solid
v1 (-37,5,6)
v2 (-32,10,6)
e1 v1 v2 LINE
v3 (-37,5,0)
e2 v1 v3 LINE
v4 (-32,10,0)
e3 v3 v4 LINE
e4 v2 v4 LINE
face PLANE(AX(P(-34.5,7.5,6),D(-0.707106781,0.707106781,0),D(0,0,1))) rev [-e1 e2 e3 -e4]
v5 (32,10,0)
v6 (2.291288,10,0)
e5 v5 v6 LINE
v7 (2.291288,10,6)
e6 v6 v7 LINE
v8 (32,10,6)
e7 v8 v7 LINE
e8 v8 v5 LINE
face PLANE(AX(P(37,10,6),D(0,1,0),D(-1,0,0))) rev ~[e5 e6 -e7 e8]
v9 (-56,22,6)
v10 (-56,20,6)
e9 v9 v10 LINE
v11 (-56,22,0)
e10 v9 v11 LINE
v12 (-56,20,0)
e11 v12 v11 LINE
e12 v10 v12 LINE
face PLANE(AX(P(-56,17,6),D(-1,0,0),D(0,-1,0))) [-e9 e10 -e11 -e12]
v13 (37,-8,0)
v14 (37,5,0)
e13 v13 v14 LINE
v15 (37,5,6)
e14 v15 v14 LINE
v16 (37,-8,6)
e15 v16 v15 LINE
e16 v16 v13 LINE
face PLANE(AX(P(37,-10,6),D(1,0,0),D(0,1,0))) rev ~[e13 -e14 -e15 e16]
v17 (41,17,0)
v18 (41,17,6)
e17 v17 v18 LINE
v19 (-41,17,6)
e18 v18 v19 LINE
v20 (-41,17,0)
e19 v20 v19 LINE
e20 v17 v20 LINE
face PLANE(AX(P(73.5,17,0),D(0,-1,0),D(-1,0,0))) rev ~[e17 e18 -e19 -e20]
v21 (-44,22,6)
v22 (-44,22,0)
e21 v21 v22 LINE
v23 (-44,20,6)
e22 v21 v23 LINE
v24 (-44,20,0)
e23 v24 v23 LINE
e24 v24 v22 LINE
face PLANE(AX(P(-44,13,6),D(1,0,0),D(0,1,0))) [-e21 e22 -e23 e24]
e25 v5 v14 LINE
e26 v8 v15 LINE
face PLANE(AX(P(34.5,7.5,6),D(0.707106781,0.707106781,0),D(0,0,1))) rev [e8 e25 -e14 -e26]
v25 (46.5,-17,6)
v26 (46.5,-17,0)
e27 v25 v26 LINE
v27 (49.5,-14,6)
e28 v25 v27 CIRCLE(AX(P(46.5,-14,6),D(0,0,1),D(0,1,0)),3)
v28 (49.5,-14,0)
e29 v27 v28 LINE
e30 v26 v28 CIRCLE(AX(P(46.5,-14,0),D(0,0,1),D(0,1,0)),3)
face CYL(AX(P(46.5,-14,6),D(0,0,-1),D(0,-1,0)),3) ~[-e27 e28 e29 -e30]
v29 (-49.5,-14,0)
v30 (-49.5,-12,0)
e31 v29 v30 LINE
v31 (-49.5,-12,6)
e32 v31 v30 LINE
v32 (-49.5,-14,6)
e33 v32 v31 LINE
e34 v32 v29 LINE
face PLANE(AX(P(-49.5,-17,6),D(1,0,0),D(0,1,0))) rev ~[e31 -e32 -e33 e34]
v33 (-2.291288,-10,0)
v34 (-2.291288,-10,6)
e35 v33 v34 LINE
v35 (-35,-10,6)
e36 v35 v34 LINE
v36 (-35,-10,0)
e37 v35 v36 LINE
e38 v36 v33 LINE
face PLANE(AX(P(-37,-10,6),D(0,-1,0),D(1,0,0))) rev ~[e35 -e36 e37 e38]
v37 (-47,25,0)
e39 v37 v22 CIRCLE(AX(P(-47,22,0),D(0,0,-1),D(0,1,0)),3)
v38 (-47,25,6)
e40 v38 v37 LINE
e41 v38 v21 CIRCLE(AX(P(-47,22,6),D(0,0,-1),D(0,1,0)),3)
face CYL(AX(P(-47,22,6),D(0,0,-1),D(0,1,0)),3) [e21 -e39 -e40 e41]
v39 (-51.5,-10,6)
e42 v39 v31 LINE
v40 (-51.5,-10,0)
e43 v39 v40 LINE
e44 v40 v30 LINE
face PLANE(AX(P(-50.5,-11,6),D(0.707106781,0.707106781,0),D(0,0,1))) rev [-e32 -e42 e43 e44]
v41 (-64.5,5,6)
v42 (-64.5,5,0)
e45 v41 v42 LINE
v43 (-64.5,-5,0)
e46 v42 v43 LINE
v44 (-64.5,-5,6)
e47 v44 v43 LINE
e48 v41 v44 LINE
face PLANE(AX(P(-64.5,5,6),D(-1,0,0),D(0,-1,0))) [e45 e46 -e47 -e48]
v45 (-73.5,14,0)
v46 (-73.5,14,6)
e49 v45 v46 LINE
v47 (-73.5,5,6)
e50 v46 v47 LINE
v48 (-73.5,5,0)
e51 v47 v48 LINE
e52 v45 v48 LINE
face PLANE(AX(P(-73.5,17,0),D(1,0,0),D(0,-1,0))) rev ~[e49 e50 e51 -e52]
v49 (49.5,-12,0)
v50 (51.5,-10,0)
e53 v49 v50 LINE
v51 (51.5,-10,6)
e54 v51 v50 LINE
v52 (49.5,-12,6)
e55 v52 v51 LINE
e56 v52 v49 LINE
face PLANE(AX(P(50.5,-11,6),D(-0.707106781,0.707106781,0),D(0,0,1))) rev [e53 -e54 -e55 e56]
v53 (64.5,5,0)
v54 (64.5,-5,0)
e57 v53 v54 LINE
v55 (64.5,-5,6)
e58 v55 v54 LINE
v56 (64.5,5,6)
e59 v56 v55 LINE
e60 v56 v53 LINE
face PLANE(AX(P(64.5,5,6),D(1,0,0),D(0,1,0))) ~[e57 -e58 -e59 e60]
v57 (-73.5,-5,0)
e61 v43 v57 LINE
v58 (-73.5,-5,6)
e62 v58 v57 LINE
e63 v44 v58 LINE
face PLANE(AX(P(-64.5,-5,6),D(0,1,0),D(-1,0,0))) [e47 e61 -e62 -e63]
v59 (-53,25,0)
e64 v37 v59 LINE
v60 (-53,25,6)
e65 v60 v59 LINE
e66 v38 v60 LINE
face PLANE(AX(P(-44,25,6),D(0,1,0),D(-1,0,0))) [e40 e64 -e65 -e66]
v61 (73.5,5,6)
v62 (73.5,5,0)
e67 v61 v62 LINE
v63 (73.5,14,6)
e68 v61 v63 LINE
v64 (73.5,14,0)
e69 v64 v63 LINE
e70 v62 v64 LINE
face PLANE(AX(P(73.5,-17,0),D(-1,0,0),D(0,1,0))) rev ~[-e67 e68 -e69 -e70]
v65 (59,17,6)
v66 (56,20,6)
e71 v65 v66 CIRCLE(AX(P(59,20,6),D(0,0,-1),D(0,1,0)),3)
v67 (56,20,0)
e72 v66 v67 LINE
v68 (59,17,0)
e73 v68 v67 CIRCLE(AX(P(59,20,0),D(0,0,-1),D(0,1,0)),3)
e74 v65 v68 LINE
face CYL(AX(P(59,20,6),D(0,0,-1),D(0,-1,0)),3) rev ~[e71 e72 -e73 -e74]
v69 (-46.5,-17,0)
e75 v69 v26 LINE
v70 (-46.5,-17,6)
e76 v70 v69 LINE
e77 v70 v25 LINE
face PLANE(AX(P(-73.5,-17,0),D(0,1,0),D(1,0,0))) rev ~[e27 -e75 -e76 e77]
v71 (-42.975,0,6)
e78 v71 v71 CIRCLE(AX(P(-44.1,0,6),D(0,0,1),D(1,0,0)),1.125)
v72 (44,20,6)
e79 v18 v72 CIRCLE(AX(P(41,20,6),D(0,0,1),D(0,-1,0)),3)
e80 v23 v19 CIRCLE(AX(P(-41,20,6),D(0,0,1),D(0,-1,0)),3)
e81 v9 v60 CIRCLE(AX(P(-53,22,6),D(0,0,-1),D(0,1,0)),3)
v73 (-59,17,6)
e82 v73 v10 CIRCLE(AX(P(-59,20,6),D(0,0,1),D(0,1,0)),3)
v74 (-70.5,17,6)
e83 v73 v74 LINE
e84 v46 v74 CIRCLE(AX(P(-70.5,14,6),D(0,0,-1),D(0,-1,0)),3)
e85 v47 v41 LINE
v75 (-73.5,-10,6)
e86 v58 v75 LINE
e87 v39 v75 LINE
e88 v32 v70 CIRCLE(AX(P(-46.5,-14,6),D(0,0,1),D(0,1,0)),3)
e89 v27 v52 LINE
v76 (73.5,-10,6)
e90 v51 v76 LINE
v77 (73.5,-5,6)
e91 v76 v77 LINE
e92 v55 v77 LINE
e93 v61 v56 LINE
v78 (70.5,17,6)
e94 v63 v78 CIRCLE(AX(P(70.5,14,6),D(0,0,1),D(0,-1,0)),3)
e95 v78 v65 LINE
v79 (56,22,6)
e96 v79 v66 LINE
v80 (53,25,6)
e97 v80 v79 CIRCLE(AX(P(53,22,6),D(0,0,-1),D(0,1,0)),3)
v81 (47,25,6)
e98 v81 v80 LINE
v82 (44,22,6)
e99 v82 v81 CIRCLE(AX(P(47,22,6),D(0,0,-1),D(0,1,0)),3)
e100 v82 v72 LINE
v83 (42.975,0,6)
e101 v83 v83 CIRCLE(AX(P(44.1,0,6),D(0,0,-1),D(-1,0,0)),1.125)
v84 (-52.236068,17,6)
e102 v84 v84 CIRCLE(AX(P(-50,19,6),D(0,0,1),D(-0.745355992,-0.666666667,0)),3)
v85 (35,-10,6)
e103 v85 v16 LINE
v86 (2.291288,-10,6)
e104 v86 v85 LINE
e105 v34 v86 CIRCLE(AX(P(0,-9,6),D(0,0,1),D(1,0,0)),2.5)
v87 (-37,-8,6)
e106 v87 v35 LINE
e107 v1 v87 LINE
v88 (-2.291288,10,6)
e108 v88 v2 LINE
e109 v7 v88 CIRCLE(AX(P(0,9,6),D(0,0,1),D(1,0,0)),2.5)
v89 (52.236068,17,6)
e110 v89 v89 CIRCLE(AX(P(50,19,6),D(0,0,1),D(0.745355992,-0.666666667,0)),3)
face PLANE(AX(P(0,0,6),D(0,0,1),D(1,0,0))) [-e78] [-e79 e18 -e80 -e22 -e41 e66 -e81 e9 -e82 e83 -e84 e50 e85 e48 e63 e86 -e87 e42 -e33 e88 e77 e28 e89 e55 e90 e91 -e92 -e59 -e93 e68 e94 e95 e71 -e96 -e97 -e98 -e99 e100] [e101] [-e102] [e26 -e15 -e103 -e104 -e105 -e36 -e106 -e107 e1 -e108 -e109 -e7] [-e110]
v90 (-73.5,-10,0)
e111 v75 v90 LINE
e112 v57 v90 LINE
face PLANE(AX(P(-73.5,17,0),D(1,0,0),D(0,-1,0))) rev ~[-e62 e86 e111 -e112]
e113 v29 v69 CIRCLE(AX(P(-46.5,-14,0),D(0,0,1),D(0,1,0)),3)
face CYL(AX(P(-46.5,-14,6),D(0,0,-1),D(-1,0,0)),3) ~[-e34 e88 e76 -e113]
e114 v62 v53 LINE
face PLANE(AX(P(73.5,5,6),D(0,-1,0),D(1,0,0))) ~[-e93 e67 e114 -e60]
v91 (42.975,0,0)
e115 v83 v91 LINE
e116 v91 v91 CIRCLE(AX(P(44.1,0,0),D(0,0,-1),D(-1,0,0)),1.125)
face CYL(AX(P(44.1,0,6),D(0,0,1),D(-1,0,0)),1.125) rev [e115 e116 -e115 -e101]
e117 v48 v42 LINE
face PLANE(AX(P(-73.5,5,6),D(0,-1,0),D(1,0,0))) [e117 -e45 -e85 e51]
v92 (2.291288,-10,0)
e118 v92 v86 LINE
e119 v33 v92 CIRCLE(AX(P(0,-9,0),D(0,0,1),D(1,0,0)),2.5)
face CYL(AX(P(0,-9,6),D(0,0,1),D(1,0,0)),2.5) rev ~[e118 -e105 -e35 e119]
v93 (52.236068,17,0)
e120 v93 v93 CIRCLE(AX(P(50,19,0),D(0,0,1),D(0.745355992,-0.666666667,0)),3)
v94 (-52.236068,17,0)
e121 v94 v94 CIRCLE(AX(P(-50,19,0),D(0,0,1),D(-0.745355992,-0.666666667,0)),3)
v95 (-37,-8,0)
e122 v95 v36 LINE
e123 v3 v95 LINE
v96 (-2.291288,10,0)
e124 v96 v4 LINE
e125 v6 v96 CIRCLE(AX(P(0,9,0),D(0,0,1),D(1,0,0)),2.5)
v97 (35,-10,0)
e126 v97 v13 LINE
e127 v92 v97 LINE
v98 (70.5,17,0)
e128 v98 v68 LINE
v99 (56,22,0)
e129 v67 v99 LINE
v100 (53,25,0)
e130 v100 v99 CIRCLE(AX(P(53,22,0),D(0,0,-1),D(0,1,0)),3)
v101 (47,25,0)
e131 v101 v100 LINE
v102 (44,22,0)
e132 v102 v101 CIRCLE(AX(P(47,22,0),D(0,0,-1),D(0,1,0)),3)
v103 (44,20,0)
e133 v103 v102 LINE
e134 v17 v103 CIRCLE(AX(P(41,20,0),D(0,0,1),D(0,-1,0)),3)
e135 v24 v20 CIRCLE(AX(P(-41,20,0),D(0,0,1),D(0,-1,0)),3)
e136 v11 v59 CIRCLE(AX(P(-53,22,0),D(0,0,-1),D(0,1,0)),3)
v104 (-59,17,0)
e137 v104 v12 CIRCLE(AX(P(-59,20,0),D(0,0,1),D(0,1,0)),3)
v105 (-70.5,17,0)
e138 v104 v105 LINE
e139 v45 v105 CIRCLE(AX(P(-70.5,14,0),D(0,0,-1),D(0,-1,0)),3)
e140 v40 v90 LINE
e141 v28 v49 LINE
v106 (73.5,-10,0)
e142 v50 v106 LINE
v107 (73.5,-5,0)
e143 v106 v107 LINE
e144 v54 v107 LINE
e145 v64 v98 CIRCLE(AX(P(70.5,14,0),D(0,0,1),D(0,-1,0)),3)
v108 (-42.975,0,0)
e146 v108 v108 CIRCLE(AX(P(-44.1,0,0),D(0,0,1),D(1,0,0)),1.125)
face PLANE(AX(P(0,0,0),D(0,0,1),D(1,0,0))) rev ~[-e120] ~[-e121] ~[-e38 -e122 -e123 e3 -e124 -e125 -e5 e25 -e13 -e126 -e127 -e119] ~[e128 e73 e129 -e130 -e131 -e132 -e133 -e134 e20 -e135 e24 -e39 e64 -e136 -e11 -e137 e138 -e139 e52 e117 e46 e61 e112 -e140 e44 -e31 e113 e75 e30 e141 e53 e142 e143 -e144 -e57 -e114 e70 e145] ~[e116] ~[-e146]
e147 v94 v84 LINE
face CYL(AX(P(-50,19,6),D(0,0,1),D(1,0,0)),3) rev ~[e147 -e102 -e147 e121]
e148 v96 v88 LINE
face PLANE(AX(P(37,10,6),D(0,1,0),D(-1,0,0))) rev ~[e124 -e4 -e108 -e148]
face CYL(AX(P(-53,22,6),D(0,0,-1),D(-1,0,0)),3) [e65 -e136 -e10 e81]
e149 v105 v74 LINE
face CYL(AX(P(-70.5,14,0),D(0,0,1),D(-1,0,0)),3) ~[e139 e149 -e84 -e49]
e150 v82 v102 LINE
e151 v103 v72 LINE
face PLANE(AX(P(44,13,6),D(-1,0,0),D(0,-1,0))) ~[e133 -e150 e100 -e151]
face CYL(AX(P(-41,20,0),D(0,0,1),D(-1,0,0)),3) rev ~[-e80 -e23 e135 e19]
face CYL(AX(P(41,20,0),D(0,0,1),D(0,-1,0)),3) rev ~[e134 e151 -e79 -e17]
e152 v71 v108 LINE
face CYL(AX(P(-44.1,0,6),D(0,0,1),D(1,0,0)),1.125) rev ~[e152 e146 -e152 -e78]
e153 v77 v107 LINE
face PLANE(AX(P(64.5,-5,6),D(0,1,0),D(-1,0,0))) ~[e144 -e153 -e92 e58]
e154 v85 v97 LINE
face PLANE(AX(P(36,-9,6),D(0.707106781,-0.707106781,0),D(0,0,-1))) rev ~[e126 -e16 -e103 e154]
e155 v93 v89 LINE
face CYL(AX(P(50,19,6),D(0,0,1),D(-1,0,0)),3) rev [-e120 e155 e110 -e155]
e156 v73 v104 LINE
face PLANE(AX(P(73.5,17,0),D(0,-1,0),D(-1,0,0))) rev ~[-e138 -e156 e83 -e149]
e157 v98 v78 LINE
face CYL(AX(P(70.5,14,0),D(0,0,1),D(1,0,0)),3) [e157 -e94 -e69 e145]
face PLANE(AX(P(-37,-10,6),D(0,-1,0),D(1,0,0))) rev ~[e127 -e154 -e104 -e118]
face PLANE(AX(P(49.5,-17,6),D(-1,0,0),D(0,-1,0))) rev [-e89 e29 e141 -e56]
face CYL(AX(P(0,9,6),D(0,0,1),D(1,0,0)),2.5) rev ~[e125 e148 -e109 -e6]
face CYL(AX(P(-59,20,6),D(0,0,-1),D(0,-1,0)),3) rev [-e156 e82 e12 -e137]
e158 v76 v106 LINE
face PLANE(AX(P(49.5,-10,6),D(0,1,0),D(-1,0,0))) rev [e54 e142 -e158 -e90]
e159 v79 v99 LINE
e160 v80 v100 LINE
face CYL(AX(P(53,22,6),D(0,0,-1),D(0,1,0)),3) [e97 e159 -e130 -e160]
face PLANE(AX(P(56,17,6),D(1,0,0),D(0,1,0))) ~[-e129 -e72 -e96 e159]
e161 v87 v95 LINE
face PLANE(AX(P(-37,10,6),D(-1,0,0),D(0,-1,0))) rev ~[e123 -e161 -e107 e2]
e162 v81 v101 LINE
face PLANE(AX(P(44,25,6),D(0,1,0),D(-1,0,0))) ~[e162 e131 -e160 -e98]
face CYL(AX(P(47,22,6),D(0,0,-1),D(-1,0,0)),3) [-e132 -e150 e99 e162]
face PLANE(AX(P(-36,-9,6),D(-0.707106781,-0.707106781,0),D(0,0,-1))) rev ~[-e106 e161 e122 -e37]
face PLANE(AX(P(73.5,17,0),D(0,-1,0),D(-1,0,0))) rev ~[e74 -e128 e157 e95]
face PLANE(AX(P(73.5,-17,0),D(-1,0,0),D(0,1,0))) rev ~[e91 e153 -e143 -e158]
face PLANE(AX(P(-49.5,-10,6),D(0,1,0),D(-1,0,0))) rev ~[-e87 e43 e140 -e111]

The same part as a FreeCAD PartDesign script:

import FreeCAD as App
import Part
import Sketcher

V = App.Vector


def edges_at(feature, points):
    """Names of the edges that pass closest to the given points."""
    edges = feature.Shape.Edges
    near = lambda p: min(range(len(edges)), key=lambda i: edges[i].distToShape(Part.Vertex(*p))[0])
    return sorted({f"Edge{near(p) + 1}" for p in points})

doc = App.newDocument("Part")
body = doc.addObject("PartDesign::Body", "Body")

# Sketch on XY plane
sketch1 = body.newObject("Sketcher::SketchObject", "Sketch")
sketch1.AttachmentSupport = (doc.getObject("XY_Plane"), [""])
sketch1.MapMode = "FlatFace"
sketch1.addGeometry(Part.LineSegment(V(-74, 17, 0), V(-74, -17, 0)), False)
sketch1.addGeometry(Part.LineSegment(V(-74, -17, 0), V(74, -17, 0)), False)
sketch1.addGeometry(Part.LineSegment(V(74, -17, 0), V(74, 17, 0)), False)
sketch1.addGeometry(Part.LineSegment(V(74, 17, 0), V(-74, 17, 0)), False)
sketch1.addConstraint(Sketcher.Constraint("Coincident", 0, 2, 1, 1))
sketch1.addConstraint(Sketcher.Constraint("Coincident", 1, 2, 2, 1))
sketch1.addConstraint(Sketcher.Constraint("Coincident", 2, 2, 3, 1))
sketch1.addConstraint(Sketcher.Constraint("Coincident", 3, 2, 0, 1))
sketch1.addConstraint(Sketcher.Constraint("Vertical", 0))
sketch1.addConstraint(Sketcher.Constraint("Horizontal", 1))
sketch1.addConstraint(Sketcher.Constraint("Vertical", 2))
sketch1.addConstraint(Sketcher.Constraint("Horizontal", 3))
sketch1.addConstraint(Sketcher.Constraint("Symmetric", 0, 2, 2, 2, -1, 1))
sketch1.addConstraint(Sketcher.Constraint("DistanceX", 1, 1, 1, 2, 147.0))
sketch1.addConstraint(Sketcher.Constraint("DistanceY", 0, 2, 0, 1, 34.0))
pad1 = body.newObject("PartDesign::Pad", "Pad")
pad1.Profile = sketch1
pad1.Length = 6

# Sketch on XY plane
sketch2 = body.newObject("Sketcher::SketchObject", "Sketch001")
sketch2.AttachmentSupport = (doc.getObject("XY_Plane"), [""])
sketch2.MapMode = "FlatFace"
sketch2.AttachmentOffset = App.Placement(V(0, 0, 6), App.Rotation())
sketch2.addGeometry(Part.LineSegment(V(-37, 10, 0), V(-37, -10, 0)), False)
sketch2.addGeometry(Part.LineSegment(V(-37, -10, 0), V(37, -10, 0)), False)
sketch2.addGeometry(Part.LineSegment(V(37, -10, 0), V(37, 10, 0)), False)
sketch2.addGeometry(Part.LineSegment(V(37, 10, 0), V(-37, 10, 0)), False)
sketch2.addConstraint(Sketcher.Constraint("Coincident", 0, 2, 1, 1))
sketch2.addConstraint(Sketcher.Constraint("Coincident", 1, 2, 2, 1))
sketch2.addConstraint(Sketcher.Constraint("Coincident", 2, 2, 3, 1))
sketch2.addConstraint(Sketcher.Constraint("Coincident", 3, 2, 0, 1))
sketch2.addConstraint(Sketcher.Constraint("Vertical", 0))
sketch2.addConstraint(Sketcher.Constraint("Horizontal", 1))
sketch2.addConstraint(Sketcher.Constraint("Vertical", 2))
sketch2.addConstraint(Sketcher.Constraint("Horizontal", 3))
sketch2.addConstraint(Sketcher.Constraint("Symmetric", 0, 2, 2, 2, -1, 1))
sketch2.addConstraint(Sketcher.Constraint("DistanceX", 1, 1, 1, 2, 74.0))
sketch2.addConstraint(Sketcher.Constraint("DistanceY", 0, 2, 0, 1, 20.0))
pocket1 = body.newObject("PartDesign::Pocket", "Pocket")
pocket1.Profile = sketch2
pocket1.Length = 6

# Sketch on XY plane
sketch3 = body.newObject("Sketcher::SketchObject", "Sketch002")
sketch3.AttachmentSupport = (doc.getObject("XY_Plane"), [""])
sketch3.MapMode = "FlatFace"
sketch3.AttachmentOffset = App.Placement(V(0, 0, 6), App.Rotation())
sketch3.addGeometry(Part.Circle(V(0, 9, 0), V(0, 0, 1), 2.5), False)
sketch3.addGeometry(Part.Circle(V(0, -9, 0), V(0, 0, 1), 2.5), False)
sketch3.addConstraint(Sketcher.Constraint("Equal", 0, 1))
sketch3.addConstraint(Sketcher.Constraint("Symmetric", 0, 3, 1, 3, -1, 1))
sketch3.addConstraint(Sketcher.Constraint("PointOnObject", 0, 3, -2))
sketch3.addConstraint(Sketcher.Constraint("Diameter", 0, 5.0))
sketch3.addConstraint(Sketcher.Constraint("DistanceY", -1, 1, 0, 3, 9.0))
pocket2 = body.newObject("PartDesign::Pocket", "Pocket001")
pocket2.Profile = sketch3
pocket2.Length = 6

# Sketch on XY plane
sketch4 = body.newObject("Sketcher::SketchObject", "Sketch003")
sketch4.AttachmentSupport = (doc.getObject("XY_Plane"), [""])
sketch4.MapMode = "FlatFace"
sketch4.AttachmentOffset = App.Placement(V(0, 0, 6), App.Rotation())
sketch4.addGeometry(Part.LineSegment(V(-44, 13, 0), V(-44, 25, 0)), False)
sketch4.addGeometry(Part.LineSegment(V(-44, 25, 0), V(-56, 25, 0)), False)
sketch4.addGeometry(Part.LineSegment(V(-56, 25, 0), V(-56, 13, 0)), False)
sketch4.addGeometry(Part.LineSegment(V(-56, 13, 0), V(-44, 13, 0)), False)
sketch4.addGeometry(Part.Circle(V(-50, 19, 0), V(0, 0, 1), 3), False)
sketch4.addConstraint(Sketcher.Constraint("Coincident", 0, 2, 1, 1))
sketch4.addConstraint(Sketcher.Constraint("Coincident", 1, 2, 2, 1))
sketch4.addConstraint(Sketcher.Constraint("Coincident", 2, 2, 3, 1))
sketch4.addConstraint(Sketcher.Constraint("Coincident", 3, 2, 0, 1))
sketch4.addConstraint(Sketcher.Constraint("Vertical", 0))
sketch4.addConstraint(Sketcher.Constraint("Horizontal", 1))
sketch4.addConstraint(Sketcher.Constraint("Vertical", 2))
sketch4.addConstraint(Sketcher.Constraint("Horizontal", 3))
sketch4.addConstraint(Sketcher.Constraint("Equal", 3, 0))
sketch4.addConstraint(Sketcher.Constraint("Diameter", 4, 6.0))
sketch4.addConstraint(Sketcher.Constraint("DistanceX", 1, 2, 1, 1, 12.0))
sketch4.addConstraint(Sketcher.Constraint("DistanceX", 4, 3, -1, 1, 50.0))
sketch4.addConstraint(Sketcher.Constraint("DistanceX", 4, 3, 0, 2, 6.0))
sketch4.addConstraint(Sketcher.Constraint("DistanceY", 4, 3, 0, 2, 6.0))
sketch4.addConstraint(Sketcher.Constraint("DistanceY", -1, 1, 4, 3, 19.0))
pad2 = body.newObject("PartDesign::Pad", "Pad001")
pad2.Profile = sketch4
pad2.Length = 6
pad2.Reversed = True

# Sketch on XY plane
sketch5 = body.newObject("Sketcher::SketchObject", "Sketch004")
sketch5.AttachmentSupport = (doc.getObject("XY_Plane"), [""])
sketch5.MapMode = "FlatFace"
sketch5.AttachmentOffset = App.Placement(V(0, 0, 6), App.Rotation())
sketch5.addGeometry(Part.LineSegment(V(-64, 5, 0), V(-74, 5, 0)), False)
sketch5.addGeometry(Part.LineSegment(V(-74, 5, 0), V(-74, -5, 0)), False)
sketch5.addGeometry(Part.LineSegment(V(-74, -5, 0), V(-64, -5, 0)), False)
sketch5.addGeometry(Part.LineSegment(V(-64, -5, 0), V(-64, 5, 0)), False)
sketch5.addConstraint(Sketcher.Constraint("Coincident", 0, 2, 1, 1))
sketch5.addConstraint(Sketcher.Constraint("Coincident", 1, 2, 2, 1))
sketch5.addConstraint(Sketcher.Constraint("Coincident", 2, 2, 3, 1))
sketch5.addConstraint(Sketcher.Constraint("Coincident", 3, 2, 0, 1))
sketch5.addConstraint(Sketcher.Constraint("Horizontal", 0))
sketch5.addConstraint(Sketcher.Constraint("Vertical", 1))
sketch5.addConstraint(Sketcher.Constraint("Horizontal", 2))
sketch5.addConstraint(Sketcher.Constraint("Vertical", 3))
sketch5.addConstraint(Sketcher.Constraint("DistanceX", 0, 2, 0, 1, 9.0))
sketch5.addConstraint(Sketcher.Constraint("DistanceY", 1, 2, 1, 1, 10.0))
sketch5.addConstraint(Sketcher.Constraint("DistanceY", -1, 1, 0, 2, 5.0))
sketch5.addConstraint(Sketcher.Constraint("DistanceX", 0, 2, -1, 1, 73.5))
pocket3 = body.newObject("PartDesign::Pocket", "Pocket002")
pocket3.Profile = sketch5
pocket3.Length = 6

# Sketch on XY plane
sketch6 = body.newObject("Sketcher::SketchObject", "Sketch005")
sketch6.AttachmentSupport = (doc.getObject("XY_Plane"), [""])
sketch6.MapMode = "FlatFace"
sketch6.AttachmentOffset = App.Placement(V(0, 0, 6), App.Rotation())
sketch6.addGeometry(Part.LineSegment(V(-74, -10, 0), V(-74, -17, 0)), False)
sketch6.addGeometry(Part.LineSegment(V(-74, -17, 0), V(-50, -17, 0)), False)
sketch6.addGeometry(Part.LineSegment(V(-50, -17, 0), V(-50, -10, 0)), False)
sketch6.addGeometry(Part.LineSegment(V(-50, -10, 0), V(-74, -10, 0)), False)
sketch6.addConstraint(Sketcher.Constraint("Coincident", 0, 2, 1, 1))
sketch6.addConstraint(Sketcher.Constraint("Coincident", 1, 2, 2, 1))
sketch6.addConstraint(Sketcher.Constraint("Coincident", 2, 2, 3, 1))
sketch6.addConstraint(Sketcher.Constraint("Coincident", 3, 2, 0, 1))
sketch6.addConstraint(Sketcher.Constraint("Vertical", 0))
sketch6.addConstraint(Sketcher.Constraint("Horizontal", 1))
sketch6.addConstraint(Sketcher.Constraint("Vertical", 2))
sketch6.addConstraint(Sketcher.Constraint("Horizontal", 3))
sketch6.addConstraint(Sketcher.Constraint("DistanceX", 1, 1, 1, 2, 24.0))
sketch6.addConstraint(Sketcher.Constraint("DistanceY", 0, 2, 0, 1, 7.0))
sketch6.addConstraint(Sketcher.Constraint("DistanceY", 0, 2, -1, 1, 17.0))
sketch6.addConstraint(Sketcher.Constraint("DistanceX", 0, 2, -1, 1, 73.5))
pocket4 = body.newObject("PartDesign::Pocket", "Pocket003")
pocket4.Profile = sketch6
pocket4.Length = 6

# Sketch on XY plane
sketch7 = body.newObject("Sketcher::SketchObject", "Sketch006")
sketch7.AttachmentSupport = (doc.getObject("XY_Plane"), [""])
sketch7.MapMode = "FlatFace"
sketch7.AttachmentOffset = App.Placement(V(0, 0, 6), App.Rotation())
sketch7.addGeometry(Part.Circle(V(-44.1, 0, 0), V(0, 0, 1), 1.1), False)
sketch7.addConstraint(Sketcher.Constraint("PointOnObject", 0, 3, -1))
sketch7.addConstraint(Sketcher.Constraint("Diameter", 0, 2.25))
sketch7.addConstraint(Sketcher.Constraint("DistanceX", 0, 3, -1, 1, 44.1))
pocket5 = body.newObject("PartDesign::Pocket", "Pocket004")
pocket5.Profile = sketch7
pocket5.Length = 6
doc.recompute()

mirrored = body.newObject("PartDesign::Mirrored", "Mirrored")
mirrored.Originals = [pad2, pocket3, pocket4, pocket5]
mirrored.MirrorPlane = (doc.getObject("YZ_Plane"), [""])
body.Tip = mirrored
doc.recompute()

chamfer = body.newObject("PartDesign::Chamfer", "Chamfer")
chamfer.Base = (mirrored, edges_at(mirrored, [(-37, 10, 3), (37, 10, 3)]))
chamfer.Size = 5
doc.recompute()

chamfer2 = body.newObject("PartDesign::Chamfer", "Chamfer001")
chamfer2.Base = (chamfer, edges_at(chamfer, [
    (-37, -10, 3),
    (-49.5, -10, 3),
    (37, -10, 3),
    (49.5, -10, 3),
]))
chamfer2.Size = 2
doc.recompute()

fillet = body.newObject("PartDesign::Fillet", "Fillet")
fillet.Base = (chamfer2, edges_at(chamfer2, [
    (-73.5, 17, 3),
    (-56, 17, 3),
    (-56, 25, 3),
    (-44, 25, 3),
    (-44, 17, 3),
    (-49.5, -17, 3),
    (49.5, -17, 3),
    (73.5, 17, 3),
    (56, 17, 3),
    (56, 25, 3),
    (44, 25, 3),
    (44, 17, 3),
]))
fillet.Radius = 3

# Sketch on XY plane
sketch8 = body.newObject("Sketcher::SketchObject", "Sketch007")
sketch8.AttachmentSupport = (doc.getObject("XY_Plane"), [""])
sketch8.MapMode = "FlatFace"
sketch8.AttachmentOffset = App.Placement(V(0, 0, 6), App.Rotation())
sketch8.addGeometry(Part.Circle(V(50, 19, 0), V(0, 0, 1), 3), False)
sketch8.addGeometry(Part.Circle(V(-50, 19, 0), V(0, 0, 1), 3), False)
sketch8.addConstraint(Sketcher.Constraint("Equal", 0, 1))
sketch8.addConstraint(Sketcher.Constraint("Symmetric", 0, 3, 1, 3, -2))
sketch8.addConstraint(Sketcher.Constraint("Diameter", 0, 6.0))
sketch8.addConstraint(Sketcher.Constraint("DistanceX", -1, 1, 0, 3, 50.0))
sketch8.addConstraint(Sketcher.Constraint("DistanceY", -1, 1, 0, 3, 19.0))
pocket6 = body.newObject("PartDesign::Pocket", "Pocket005")
pocket6.Profile = sketch8
pocket6.Type = "ThroughAll"

doc.recompute()
